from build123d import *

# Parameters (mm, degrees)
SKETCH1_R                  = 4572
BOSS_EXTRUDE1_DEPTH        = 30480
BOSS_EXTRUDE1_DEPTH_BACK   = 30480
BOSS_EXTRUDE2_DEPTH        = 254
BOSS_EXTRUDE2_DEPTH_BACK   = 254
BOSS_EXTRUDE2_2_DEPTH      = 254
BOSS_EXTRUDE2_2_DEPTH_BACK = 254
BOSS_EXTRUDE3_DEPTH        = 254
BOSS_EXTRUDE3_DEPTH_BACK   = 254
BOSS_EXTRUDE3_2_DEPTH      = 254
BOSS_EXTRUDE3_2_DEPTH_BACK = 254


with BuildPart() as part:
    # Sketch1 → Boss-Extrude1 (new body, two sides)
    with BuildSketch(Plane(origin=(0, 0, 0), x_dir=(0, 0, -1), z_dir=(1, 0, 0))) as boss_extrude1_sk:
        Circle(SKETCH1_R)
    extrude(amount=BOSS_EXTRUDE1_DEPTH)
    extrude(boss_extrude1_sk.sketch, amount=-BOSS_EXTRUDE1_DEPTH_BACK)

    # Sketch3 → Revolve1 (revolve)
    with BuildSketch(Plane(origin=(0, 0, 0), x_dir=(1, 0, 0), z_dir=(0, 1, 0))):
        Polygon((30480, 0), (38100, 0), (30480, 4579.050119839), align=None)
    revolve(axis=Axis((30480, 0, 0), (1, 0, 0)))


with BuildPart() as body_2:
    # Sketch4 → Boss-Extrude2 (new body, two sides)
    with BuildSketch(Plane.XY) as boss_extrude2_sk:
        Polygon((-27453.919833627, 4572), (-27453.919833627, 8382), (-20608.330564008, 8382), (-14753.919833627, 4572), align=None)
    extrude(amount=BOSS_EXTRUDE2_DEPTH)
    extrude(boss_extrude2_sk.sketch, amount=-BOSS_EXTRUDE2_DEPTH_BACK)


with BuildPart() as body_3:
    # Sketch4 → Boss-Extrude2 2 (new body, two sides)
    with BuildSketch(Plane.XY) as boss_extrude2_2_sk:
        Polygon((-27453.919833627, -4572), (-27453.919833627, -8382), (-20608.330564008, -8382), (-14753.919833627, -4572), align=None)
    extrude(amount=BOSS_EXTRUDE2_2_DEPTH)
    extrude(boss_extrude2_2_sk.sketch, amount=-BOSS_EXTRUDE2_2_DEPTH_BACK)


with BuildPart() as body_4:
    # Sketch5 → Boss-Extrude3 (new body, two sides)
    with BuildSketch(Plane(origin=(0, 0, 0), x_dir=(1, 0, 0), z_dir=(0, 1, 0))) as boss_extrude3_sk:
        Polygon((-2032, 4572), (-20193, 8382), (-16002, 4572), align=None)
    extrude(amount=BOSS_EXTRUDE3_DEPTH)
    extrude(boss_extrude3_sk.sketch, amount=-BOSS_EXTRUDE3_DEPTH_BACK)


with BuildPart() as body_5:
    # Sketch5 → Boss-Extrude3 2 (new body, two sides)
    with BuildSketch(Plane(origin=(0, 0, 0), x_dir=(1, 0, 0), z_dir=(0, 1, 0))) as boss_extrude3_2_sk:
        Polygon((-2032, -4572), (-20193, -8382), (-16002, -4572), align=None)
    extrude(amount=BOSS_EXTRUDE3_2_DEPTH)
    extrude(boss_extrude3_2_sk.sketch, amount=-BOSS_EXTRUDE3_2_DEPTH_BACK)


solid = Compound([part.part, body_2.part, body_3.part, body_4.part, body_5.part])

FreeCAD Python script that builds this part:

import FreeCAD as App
import Part
import Sketcher

V = App.Vector
Q = App.Units.Quantity


def add_polygon(sketch, points):
    """Adds a closed chain of lines whose ends are joined by coincident constraints."""
    first, n = sketch.GeometryCount, len(points)
    for a, b in zip(points, points[1:] + points[:1]):
        sketch.addGeometry(Part.LineSegment(App.Vector(*a, 0), App.Vector(*b, 0)), False)
    for i in range(n):
        sketch.addConstraint(Sketcher.Constraint("Coincident", first + i, 2, first + (i + 1) % n, 1))

doc = App.newDocument("Part")
body = doc.addObject("PartDesign::Body", "Body")

sketch1 = doc.addObject("Sketcher::SketchObject", "Sketch")
body.addObject(sketch1)
sketch1.AttachmentSupport = (doc.YZ_Plane, [""])
sketch1.MapMode = "FlatFace"
sketch1.addGeometry(Part.Circle(V(0, 0, 0), V(0, 0, 1), 4572), False)
sketch1.addConstraint([
    Sketcher.Constraint("Coincident", 0, 3, -1, 1),
    Sketcher.Constraint("Diameter", 0, Q("360 in")),
])
pad1 = doc.addObject("PartDesign::Pad", "Pad")
body.addObject(pad1)
pad1.Profile = sketch1
pad1.Type = "TwoLengths"
pad1.Length = Q("1200 in")
pad1.Length2 = Q("1200 in")

sketch2 = doc.addObject("Sketcher::SketchObject", "Sketch001")
body.addObject(sketch2)
sketch2.AttachmentSupport = (doc.XZ_Plane, [""])
sketch2.MapMode = "FlatFace"
add_polygon(sketch2, [(30480, 0), (38100, 0), (30480, -4579.05012)])
sketch2.addConstraint([
    Sketcher.Constraint("Horizontal", 0),
    Sketcher.Constraint("Vertical", 2),
    Sketcher.Constraint("PointOnObject", 0, 2, -1),
    Sketcher.Constraint("DistanceX", 0, 1, 0, 2, Q("300 in")),
    Sketcher.Constraint("Distance", 1, Q("350 in")),
    Sketcher.Constraint("DistanceX", -1, 1, 0, 2, Q("1500 in")),
])
revolution = doc.addObject("PartDesign::Revolution", "Revolution")
body.addObject(revolution)
revolution.Profile = sketch2
revolution.ReferenceAxis = (sketch2, ["H_Axis"])
revolution.Angle = 360
body2 = doc.addObject("PartDesign::Body", "Body001")

sketch3 = doc.addObject("Sketcher::SketchObject", "Sketch002")
body2.addObject(sketch3)
sketch3.AttachmentSupport = (doc.getObject("XY_Plane001"), [""])
sketch3.MapMode = "FlatFace"
add_polygon(sketch3, [(-27453.919834, 8382), (-27453.919834, 4572), (-14753.919834, 4572), (-20608.330564, 8382)])
sketch3.addConstraint([
    Sketcher.Constraint("Vertical", 0),
    Sketcher.Constraint("Horizontal", 1),
    Sketcher.Constraint("Horizontal", 3),
    Sketcher.Constraint("DistanceX", 1, 1, 1, 2, Q("500 in")),
    Sketcher.Constraint("DistanceY", 0, 2, 0, 1, Q("150 in")),
    Sketcher.Constraint("Distance", 2, Q("275 in")),
    Sketcher.Constraint("DistanceY", -1, 1, 0, 2, Q("180 in")),
    Sketcher.Constraint("DistanceX", 0, 2, -1, 1, Q("27453.919834 mm")),
])
pad2 = doc.addObject("PartDesign::Pad", "Pad001")
body2.addObject(pad2)
pad2.Profile = sketch3
pad2.Type = "TwoLengths"
pad2.Length = Q("10 in")
pad2.Length2 = Q("10 in")
body3 = doc.addObject("PartDesign::Body", "Body002")

sketch4 = doc.addObject("Sketcher::SketchObject", "Sketch003")
body3.addObject(sketch4)
sketch4.AttachmentSupport = (doc.getObject("XY_Plane002"), [""])
sketch4.MapMode = "FlatFace"
add_polygon(sketch4, [(-27453.919834, -4572), (-27453.919834, -8382), (-20608.330564, -8382), (-14753.919834, -4572)])
sketch4.addConstraint([
    Sketcher.Constraint("Vertical", 0),
    Sketcher.Constraint("Horizontal", 1),
    Sketcher.Constraint("Horizontal", 3),
    Sketcher.Constraint("DistanceX", 3, 2, 3, 1, Q("500 in")),
    Sketcher.Constraint("DistanceY", 0, 2, 0, 1, Q("150 in")),
    Sketcher.Constraint("Distance", 2, Q("275 in")),
    Sketcher.Constraint("DistanceY", 0, 2, -1, 1, Q("330 in")),
    Sketcher.Constraint("DistanceX", 0, 2, -1, 1, Q("27453.919834 mm")),
])
pad3 = doc.addObject("PartDesign::Pad", "Pad002")
body3.addObject(pad3)
pad3.Profile = sketch4
pad3.Type = "TwoLengths"
pad3.Length = Q("10 in")
pad3.Length2 = Q("10 in")
body4 = doc.addObject("PartDesign::Body", "Body003")

sketch5 = doc.addObject("Sketcher::SketchObject", "Sketch004")
body4.addObject(sketch5)
sketch5.AttachmentSupport = (doc.getObject("XZ_Plane003"), [""])
sketch5.MapMode = "FlatFace"
add_polygon(sketch5, [(-2032, -4572), (-20193, -8382), (-16002, -4572)])
sketch5.addConstraint([
    Sketcher.Constraint("Horizontal", 2),
    Sketcher.Constraint("DistanceX", 2, 1, 2, 2, Q("550 in")),
    Sketcher.Constraint("DistanceX", 0, 2, -1, 1, Q("795 in")),
    Sketcher.Constraint("DistanceY", 0, 2, -1, 1, Q("330 in")),
    Sketcher.Constraint("DistanceX", 1, 2, -1, 1, Q("630 in")),
    Sketcher.Constraint("DistanceY", 1, 2, -1, 1, Q("180 in")),
])
pad4 = doc.addObject("PartDesign::Pad", "Pad003")
body4.addObject(pad4)
pad4.Profile = sketch5
pad4.Type = "TwoLengths"
pad4.Length = Q("10 in")
pad4.Length2 = Q("10 in")
pad4.Reversed = True
body5 = doc.addObject("PartDesign::Body", "Body004")

sketch6 = doc.addObject("Sketcher::SketchObject", "Sketch005")
body5.addObject(sketch6)
sketch6.AttachmentSupport = (doc.getObject("XZ_Plane004"), [""])
sketch6.MapMode = "FlatFace"
add_polygon(sketch6, [(-20193, 8382), (-2032, 4572), (-16002, 4572)])
sketch6.addConstraint([
    Sketcher.Constraint("Horizontal", 1),
    Sketcher.Constraint("DistanceX", 1, 2, 1, 1, Q("550 in")),
    Sketcher.Constraint("DistanceX", 0, 2, -1, 1, Q("80 in")),
    Sketcher.Constraint("DistanceY", -1, 1, 0, 2, Q("180 in")),
    Sketcher.Constraint("DistanceX", 2, 2, -1, 1, Q("795 in")),
    Sketcher.Constraint("DistanceY", -1, 1, 2, 2, Q("330 in")),
])
pad5 = doc.addObject("PartDesign::Pad", "Pad004")
body5.addObject(pad5)
pad5.Profile = sketch6
pad5.Type = "TwoLengths"
pad5.Length = Q("10 in")
pad5.Length2 = Q("10 in")
pad5.Reversed = True

doc.recompute()
